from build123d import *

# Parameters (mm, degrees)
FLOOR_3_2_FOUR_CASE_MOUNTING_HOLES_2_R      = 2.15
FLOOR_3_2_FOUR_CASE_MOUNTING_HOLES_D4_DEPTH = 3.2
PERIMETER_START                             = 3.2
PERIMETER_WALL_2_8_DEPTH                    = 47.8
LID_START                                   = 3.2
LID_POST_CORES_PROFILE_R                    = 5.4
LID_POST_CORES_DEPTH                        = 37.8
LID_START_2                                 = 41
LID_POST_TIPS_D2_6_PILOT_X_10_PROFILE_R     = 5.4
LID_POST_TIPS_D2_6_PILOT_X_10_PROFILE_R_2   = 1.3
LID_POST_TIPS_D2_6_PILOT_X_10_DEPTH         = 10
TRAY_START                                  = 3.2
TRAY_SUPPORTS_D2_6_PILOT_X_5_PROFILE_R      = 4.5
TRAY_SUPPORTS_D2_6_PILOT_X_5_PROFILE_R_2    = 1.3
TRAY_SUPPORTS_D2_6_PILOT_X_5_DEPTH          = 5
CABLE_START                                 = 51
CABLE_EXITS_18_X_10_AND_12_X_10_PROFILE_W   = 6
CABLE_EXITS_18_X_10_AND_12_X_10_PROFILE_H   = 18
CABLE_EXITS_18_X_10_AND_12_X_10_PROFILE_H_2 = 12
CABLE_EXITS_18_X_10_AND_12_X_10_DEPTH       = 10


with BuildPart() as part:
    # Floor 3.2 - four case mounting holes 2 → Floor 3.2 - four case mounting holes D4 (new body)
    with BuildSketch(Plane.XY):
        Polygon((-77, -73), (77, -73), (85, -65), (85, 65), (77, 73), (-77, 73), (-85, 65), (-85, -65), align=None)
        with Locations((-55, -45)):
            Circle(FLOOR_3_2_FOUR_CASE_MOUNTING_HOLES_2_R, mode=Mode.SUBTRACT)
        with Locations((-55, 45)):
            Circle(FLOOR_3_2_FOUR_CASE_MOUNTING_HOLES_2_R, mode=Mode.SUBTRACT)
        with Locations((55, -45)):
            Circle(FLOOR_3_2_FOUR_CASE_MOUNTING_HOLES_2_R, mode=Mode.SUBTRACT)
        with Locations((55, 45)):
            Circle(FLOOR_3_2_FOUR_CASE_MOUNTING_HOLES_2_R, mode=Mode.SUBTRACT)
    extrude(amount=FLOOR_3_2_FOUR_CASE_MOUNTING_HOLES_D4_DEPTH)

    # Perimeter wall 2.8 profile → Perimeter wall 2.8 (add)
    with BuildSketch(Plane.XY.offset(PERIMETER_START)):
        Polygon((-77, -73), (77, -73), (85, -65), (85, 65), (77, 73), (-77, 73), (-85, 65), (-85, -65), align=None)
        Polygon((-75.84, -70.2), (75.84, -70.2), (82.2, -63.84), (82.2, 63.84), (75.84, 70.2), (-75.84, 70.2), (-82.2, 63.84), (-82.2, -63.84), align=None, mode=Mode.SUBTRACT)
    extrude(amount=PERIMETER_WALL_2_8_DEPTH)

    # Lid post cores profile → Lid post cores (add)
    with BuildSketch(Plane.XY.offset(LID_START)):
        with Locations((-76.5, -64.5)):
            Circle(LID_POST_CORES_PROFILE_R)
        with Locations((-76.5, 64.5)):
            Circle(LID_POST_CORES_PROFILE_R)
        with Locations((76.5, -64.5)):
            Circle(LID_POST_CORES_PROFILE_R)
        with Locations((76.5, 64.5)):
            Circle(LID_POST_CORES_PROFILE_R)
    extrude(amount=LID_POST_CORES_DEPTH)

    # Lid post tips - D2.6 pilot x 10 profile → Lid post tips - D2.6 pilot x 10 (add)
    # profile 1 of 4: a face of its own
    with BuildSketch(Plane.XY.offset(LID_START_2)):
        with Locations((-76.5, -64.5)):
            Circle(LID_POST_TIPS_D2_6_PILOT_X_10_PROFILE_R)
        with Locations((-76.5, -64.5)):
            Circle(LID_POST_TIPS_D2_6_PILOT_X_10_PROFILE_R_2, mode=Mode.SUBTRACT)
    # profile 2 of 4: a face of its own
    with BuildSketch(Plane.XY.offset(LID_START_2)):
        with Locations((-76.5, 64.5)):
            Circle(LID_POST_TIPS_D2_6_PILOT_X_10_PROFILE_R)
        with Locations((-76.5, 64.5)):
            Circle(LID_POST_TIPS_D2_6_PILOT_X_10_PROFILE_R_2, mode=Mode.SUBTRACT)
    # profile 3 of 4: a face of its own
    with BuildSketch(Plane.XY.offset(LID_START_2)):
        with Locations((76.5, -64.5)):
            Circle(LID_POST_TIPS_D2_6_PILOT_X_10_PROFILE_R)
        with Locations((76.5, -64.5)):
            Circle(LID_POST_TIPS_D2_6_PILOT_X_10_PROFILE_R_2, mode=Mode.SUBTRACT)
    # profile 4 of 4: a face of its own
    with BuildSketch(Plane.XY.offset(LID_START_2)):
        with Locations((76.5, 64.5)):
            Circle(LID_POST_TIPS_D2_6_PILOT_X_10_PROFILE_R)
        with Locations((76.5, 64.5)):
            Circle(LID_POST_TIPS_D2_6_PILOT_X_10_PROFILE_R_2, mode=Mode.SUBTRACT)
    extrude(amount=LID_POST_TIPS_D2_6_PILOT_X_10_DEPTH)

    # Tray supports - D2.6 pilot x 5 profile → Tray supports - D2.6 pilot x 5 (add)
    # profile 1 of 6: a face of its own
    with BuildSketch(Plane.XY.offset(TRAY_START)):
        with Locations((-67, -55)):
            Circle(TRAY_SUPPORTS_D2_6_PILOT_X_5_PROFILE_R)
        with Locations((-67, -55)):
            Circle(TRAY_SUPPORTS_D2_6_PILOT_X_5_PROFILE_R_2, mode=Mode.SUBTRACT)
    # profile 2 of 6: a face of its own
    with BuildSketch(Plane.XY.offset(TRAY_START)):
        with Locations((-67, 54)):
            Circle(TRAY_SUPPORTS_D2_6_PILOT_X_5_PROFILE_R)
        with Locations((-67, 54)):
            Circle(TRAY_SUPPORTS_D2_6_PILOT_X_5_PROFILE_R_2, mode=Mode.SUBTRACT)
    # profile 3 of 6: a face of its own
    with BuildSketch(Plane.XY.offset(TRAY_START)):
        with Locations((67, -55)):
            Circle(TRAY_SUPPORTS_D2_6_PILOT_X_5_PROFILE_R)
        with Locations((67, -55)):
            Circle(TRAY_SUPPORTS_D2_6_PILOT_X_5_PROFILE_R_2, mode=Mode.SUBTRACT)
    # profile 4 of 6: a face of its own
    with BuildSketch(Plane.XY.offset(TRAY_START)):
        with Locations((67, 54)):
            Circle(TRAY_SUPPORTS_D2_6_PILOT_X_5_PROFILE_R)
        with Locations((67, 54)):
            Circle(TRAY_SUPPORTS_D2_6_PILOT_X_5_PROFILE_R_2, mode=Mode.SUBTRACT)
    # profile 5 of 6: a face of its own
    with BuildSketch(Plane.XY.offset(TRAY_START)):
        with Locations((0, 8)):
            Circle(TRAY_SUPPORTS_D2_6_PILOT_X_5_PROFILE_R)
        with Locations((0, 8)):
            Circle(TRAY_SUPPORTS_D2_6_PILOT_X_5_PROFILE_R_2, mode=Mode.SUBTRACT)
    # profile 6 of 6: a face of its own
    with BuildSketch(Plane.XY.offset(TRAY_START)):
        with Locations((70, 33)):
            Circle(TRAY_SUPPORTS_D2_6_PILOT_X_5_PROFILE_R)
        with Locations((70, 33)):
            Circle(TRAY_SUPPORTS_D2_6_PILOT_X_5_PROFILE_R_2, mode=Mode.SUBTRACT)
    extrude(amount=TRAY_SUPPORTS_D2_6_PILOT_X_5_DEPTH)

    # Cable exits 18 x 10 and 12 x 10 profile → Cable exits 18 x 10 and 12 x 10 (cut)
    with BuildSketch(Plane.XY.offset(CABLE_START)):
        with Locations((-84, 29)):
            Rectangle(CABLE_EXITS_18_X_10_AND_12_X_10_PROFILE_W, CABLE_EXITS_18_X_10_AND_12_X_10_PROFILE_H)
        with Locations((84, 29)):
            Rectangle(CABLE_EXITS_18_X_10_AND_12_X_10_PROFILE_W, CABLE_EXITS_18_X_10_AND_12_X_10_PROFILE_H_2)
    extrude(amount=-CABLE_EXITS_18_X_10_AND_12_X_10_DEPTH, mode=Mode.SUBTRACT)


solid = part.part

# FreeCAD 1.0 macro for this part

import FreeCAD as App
import Part
import Sketcher


def add_polygon(sketch, points):
    """Adds a closed chain of lines whose ends are joined by coincident constraints."""
    first, n = sketch.GeometryCount, len(points)
    for a, b in zip(points, points[1:] + points[:1]):
        sketch.addGeometry(Part.LineSegment(App.Vector(*a, 0), App.Vector(*b, 0)), False)
    for i in range(n):
        sketch.addConstraint(Sketcher.Constraint("Coincident", first + i, 2, first + (i + 1) % n, 1))

doc = App.newDocument("Part")
body = doc.addObject("PartDesign::Body", "Body")

# Sketch on XY plane
sketch1 = body.newObject("Sketcher::SketchObject", "Sketch")
sketch1.AttachmentSupport = (doc.getObject("XY_Plane"), [""])
sketch1.MapMode = "FlatFace"
add_polygon(sketch1, [(-77, -73), (77, -73), (85, -65), (85, 65), (77, 73), (-77, 73), (-85, 65), (-85, -65)])  # lines 0-7
sketch1.addGeometry(Part.Circle(App.Vector(-55, -45, 0), App.Vector(0, 0, 1), 2.1), False)  # 8
sketch1.addGeometry(Part.Circle(App.Vector(55, -45, 0), App.Vector(0, 0, 1), 2.1), False)  # 9
sketch1.addGeometry(Part.Circle(App.Vector(-55, 45, 0), App.Vector(0, 0, 1), 2.1), False)  # 10
sketch1.addGeometry(Part.Circle(App.Vector(55, 45, 0), App.Vector(0, 0, 1), 2.1), False)  # 11
sketch1.addConstraint(Sketcher.Constraint("Horizontal", 0))
sketch1.addConstraint(Sketcher.Constraint("Vertical", 2))
sketch1.addConstraint(Sketcher.Constraint("Horizontal", 4))
sketch1.addConstraint(Sketcher.Constraint("Vertical", 6))
sketch1.addConstraint(Sketcher.Constraint("Equal", 8, 9))
sketch1.addConstraint(Sketcher.Constraint("Equal", 9, 10))
sketch1.addConstraint(Sketcher.Constraint("Equal", 10, 11))
sketch1.addConstraint(Sketcher.Constraint("Symmetric", 9, 3, 10, 3, -1, 1))
sketch1.addConstraint(Sketcher.Constraint("Symmetric", 8, 3, 11, 3, -1, 1))
sketch1.addConstraint(Sketcher.Constraint("Symmetric", 0, 2, 4, 2, -1, 1))
sketch1.addConstraint(Sketcher.Constraint("Symmetric", 1, 2, 5, 2, -1, 1))
sketch1.addConstraint(Sketcher.Constraint("Symmetric", 8, 3, 9, 3, -2))
sketch1.addConstraint(Sketcher.Constraint("Perpendicular", 1, 3))
sketch1.addConstraint(Sketcher.Constraint("Perpendicular", 5, 7))
sketch1.addConstraint(Sketcher.Constraint("Horizontal", 2, 2, 5, 2))
sketch1.addConstraint(Sketcher.Constraint("Horizontal", 1, 2, 6, 2))
sketch1.addConstraint(Sketcher.Constraint("Vertical", 0, 2, 3, 2))
sketch1.addConstraint(Sketcher.Constraint("Diameter", 8, 4.3))
sketch1.addConstraint(Sketcher.Constraint("DistanceX", 0, 1, 0, 2, 154.0))
sketch1.addConstraint(Sketcher.Constraint("DistanceY", 2, 1, 2, 2, 130.0))
sketch1.addConstraint(Sketcher.Constraint("DistanceX", 8, 3, -1, 1, 55.0))
sketch1.addConstraint(Sketcher.Constraint("DistanceY", 8, 3, -1, 1, 45.0))
sketch1.addConstraint(Sketcher.Constraint("DistanceY", 0, 2, -1, 1, 73.0))
pad1 = body.newObject("PartDesign::Pad", "Pad")
pad1.Profile = sketch1
pad1.Length = 3.2

# Sketch on XY plane
sketch2 = body.newObject("Sketcher::SketchObject", "Sketch001")
sketch2.AttachmentSupport = (doc.getObject("XY_Plane"), [""])
sketch2.MapMode = "FlatFace"
sketch2.AttachmentOffset = App.Placement(App.Vector(0, 0, 3.2), App.Rotation())
add_polygon(sketch2, [(-77, -73), (77, -73), (85, -65), (85, 65), (77, 73), (-77, 73), (-85, 65), (-85, -65)])  # lines 0-7
add_polygon(sketch2, [(76, -70), (-76, -70), (-82, -64), (-82, 64), (-76, 70), (76, 70), (82, 64), (82, -64)])  # lines 8-15
sketch2.addConstraint(Sketcher.Constraint("Horizontal", 0))
sketch2.addConstraint(Sketcher.Constraint("Vertical", 2))
sketch2.addConstraint(Sketcher.Constraint("Horizontal", 4))
sketch2.addConstraint(Sketcher.Constraint("Vertical", 6))
sketch2.addConstraint(Sketcher.Constraint("Horizontal", 8))
sketch2.addConstraint(Sketcher.Constraint("Vertical", 10))
sketch2.addConstraint(Sketcher.Constraint("Horizontal", 12))
sketch2.addConstraint(Sketcher.Constraint("Vertical", 14))
sketch2.addConstraint(Sketcher.Constraint("Symmetric", 0, 2, 4, 2, -1, 1))
sketch2.addConstraint(Sketcher.Constraint("Symmetric", 1, 2, 5, 2, -1, 1))
sketch2.addConstraint(Sketcher.Constraint("Symmetric", 8, 2, 12, 2, -1, 1))
sketch2.addConstraint(Sketcher.Constraint("Symmetric", 9, 2, 13, 2, -1, 1))
sketch2.addConstraint(Sketcher.Constraint("Perpendicular", 1, 3))
sketch2.addConstraint(Sketcher.Constraint("Perpendicular", 5, 7))
sketch2.addConstraint(Sketcher.Constraint("Parallel", 7, 9))
sketch2.addConstraint(Sketcher.Constraint("Perpendicular", 9, 11))
sketch2.addConstraint(Sketcher.Constraint("Perpendicular", 13, 15))
sketch2.addConstraint(Sketcher.Constraint("Horizontal", 2, 2, 5, 2))
sketch2.addConstraint(Sketcher.Constraint("Horizontal", 1, 2, 6, 2))
sketch2.addConstraint(Sketcher.Constraint("Horizontal", 10, 2, 13, 2))
sketch2.addConstraint(Sketcher.Constraint("Horizontal", 9, 2, 14, 2))
sketch2.addConstraint(Sketcher.Constraint("Vertical", 0, 2, 3, 2))
sketch2.addConstraint(Sketcher.Constraint("DistanceX", 0, 1, 0, 2, 154.0))
sketch2.addConstraint(Sketcher.Constraint("DistanceY", 2, 1, 2, 2, 130.0))
sketch2.addConstraint(Sketcher.Constraint("DistanceY", 0, 2, -1, 1, 73.0))
sketch2.addConstraint(Sketcher.Constraint("DistanceX", 8, 2, 8, 1, 151.68))
sketch2.addConstraint(Sketcher.Constraint("DistanceY", 10, 1, 10, 2, 127.68))
sketch2.addConstraint(Sketcher.Constraint("DistanceY", 8, 2, -1, 1, 70.2))
pad2 = body.newObject("PartDesign::Pad", "Pad001")
pad2.Profile = sketch2
pad2.Length = 47.8

# Sketch on XY plane
sketch3 = body.newObject("Sketcher::SketchObject", "Sketch002")
sketch3.AttachmentSupport = (doc.getObject("XY_Plane"), [""])
sketch3.MapMode = "FlatFace"
sketch3.AttachmentOffset = App.Placement(App.Vector(0, 0, 3.2), App.Rotation())
sketch3.addGeometry(Part.Circle(App.Vector(-76, -64, 0), App.Vector(0, 0, 1), 5), False)
sketch3.addGeometry(Part.Circle(App.Vector(-76, 64, 0), App.Vector(0, 0, 1), 5), False)
sketch3.addGeometry(Part.Circle(App.Vector(76, -64, 0), App.Vector(0, 0, 1), 5), False)
sketch3.addGeometry(Part.Circle(App.Vector(76, 64, 0), App.Vector(0, 0, 1), 5), False)
sketch3.addConstraint(Sketcher.Constraint("Equal", 0, 1))
sketch3.addConstraint(Sketcher.Constraint("Equal", 1, 2))
sketch3.addConstraint(Sketcher.Constraint("Equal", 2, 3))
sketch3.addConstraint(Sketcher.Constraint("Symmetric", 1, 3, 2, 3, -1, 1))
sketch3.addConstraint(Sketcher.Constraint("Symmetric", 0, 3, 3, 3, -1, 1))
sketch3.addConstraint(Sketcher.Constraint("Symmetric", 0, 3, 2, 3, -2))
sketch3.addConstraint(Sketcher.Constraint("Diameter", 0, 10.8))
sketch3.addConstraint(Sketcher.Constraint("DistanceY", 0, 3, 1, 3, 129.0))
sketch3.addConstraint(Sketcher.Constraint("DistanceX", 0, 3, 2, 3, 153.0))
pad3 = body.newObject("PartDesign::Pad", "Pad002")
pad3.Profile = sketch3
pad3.Length = 37.8

# Sketch on XY plane
sketch4 = body.newObject("Sketcher::SketchObject", "Sketch003")
sketch4.AttachmentSupport = (doc.getObject("XY_Plane"), [""])
sketch4.MapMode = "FlatFace"
sketch4.AttachmentOffset = App.Placement(App.Vector(0, 0, 41), App.Rotation())
sketch4.addGeometry(Part.Circle(App.Vector(-76.5, -64.5, 0), App.Vector(0, 0, 1), 5.4), False)
sketch4.addGeometry(Part.Circle(App.Vector(-76.5, -64.5, 0), App.Vector(0, 0, 1), 1.3), False)
sketch4.addGeometry(Part.Circle(App.Vector(-76.5, 64.5, 0), App.Vector(0, 0, 1), 5.4), False)
sketch4.addGeometry(Part.Circle(App.Vector(-76.5, 64.5, 0), App.Vector(0, 0, 1), 1.3), False)
sketch4.addGeometry(Part.Circle(App.Vector(76.5, -64.5, 0), App.Vector(0, 0, 1), 5.4), False)
sketch4.addGeometry(Part.Circle(App.Vector(76.5, -64.5, 0), App.Vector(0, 0, 1), 1.3), False)
sketch4.addGeometry(Part.Circle(App.Vector(76.5, 64.5, 0), App.Vector(0, 0, 1), 5.4), False)
sketch4.addGeometry(Part.Circle(App.Vector(76.5, 64.5, 0), App.Vector(0, 0, 1), 1.3), False)
sketch4.addConstraint(Sketcher.Constraint("Coincident", 1, 3, 0, 3))
sketch4.addConstraint(Sketcher.Constraint("Coincident", 3, 3, 2, 3))
sketch4.addConstraint(Sketcher.Constraint("Coincident", 5, 3, 4, 3))
sketch4.addConstraint(Sketcher.Constraint("Coincident", 7, 3, 6, 3))
sketch4.addConstraint(Sketcher.Constraint("Equal", 0, 2))
sketch4.addConstraint(Sketcher.Constraint("Equal", 1, 3))
sketch4.addConstraint(Sketcher.Constraint("Equal", 2, 4))
sketch4.addConstraint(Sketcher.Constraint("Equal", 3, 5))
sketch4.addConstraint(Sketcher.Constraint("Equal", 4, 6))
sketch4.addConstraint(Sketcher.Constraint("Equal", 5, 7))
sketch4.addConstraint(Sketcher.Constraint("Symmetric", 2, 3, 4, 3, -1, 1))
sketch4.addConstraint(Sketcher.Constraint("Symmetric", 0, 3, 6, 3, -1, 1))
sketch4.addConstraint(Sketcher.Constraint("Symmetric", 0, 3, 4, 3, -2))
sketch4.addConstraint(Sketcher.Constraint("Diameter", 0, 10.8))
sketch4.addConstraint(Sketcher.Constraint("Diameter", 1, 2.6))
sketch4.addConstraint(Sketcher.Constraint("DistanceY", 0, 3, 2, 3, 129.0))
sketch4.addConstraint(Sketcher.Constraint("DistanceX", 0, 3, 4, 3, 153.0))
pad4 = body.newObject("PartDesign::Pad", "Pad003")
pad4.Profile = sketch4
pad4.Length = 10

# Sketch on XY plane
sketch5 = body.newObject("Sketcher::SketchObject", "Sketch004")
sketch5.AttachmentSupport = (doc.getObject("XY_Plane"), [""])
sketch5.MapMode = "FlatFace"
sketch5.AttachmentOffset = App.Placement(App.Vector(0, 0, 3.2), App.Rotation())
sketch5.addGeometry(Part.Circle(App.Vector(-67, -55, 0), App.Vector(0, 0, 1), 4.5), False)
sketch5.addGeometry(Part.Circle(App.Vector(-67, -55, 0), App.Vector(0, 0, 1), 1.3), False)
sketch5.addGeometry(Part.Circle(App.Vector(-67, 54, 0), App.Vector(0, 0, 1), 4.5), False)
sketch5.addGeometry(Part.Circle(App.Vector(-67, 54, 0), App.Vector(0, 0, 1), 1.3), False)
sketch5.addGeometry(Part.Circle(App.Vector(67, -55, 0), App.Vector(0, 0, 1), 4.5), False)
sketch5.addGeometry(Part.Circle(App.Vector(67, -55, 0), App.Vector(0, 0, 1), 1.3), False)
sketch5.addGeometry(Part.Circle(App.Vector(67, 54, 0), App.Vector(0, 0, 1), 4.5), False)
sketch5.addGeometry(Part.Circle(App.Vector(67, 54, 0), App.Vector(0, 0, 1), 1.3), False)
sketch5.addGeometry(Part.Circle(App.Vector(0, 8, 0), App.Vector(0, 0, 1), 4.5), False)
sketch5.addGeometry(Part.Circle(App.Vector(0, 8, 0), App.Vector(0, 0, 1), 1.3), False)
sketch5.addGeometry(Part.Circle(App.Vector(70, 33, 0), App.Vector(0, 0, 1), 4.5), False)
sketch5.addGeometry(Part.Circle(App.Vector(70, 33, 0), App.Vector(0, 0, 1), 1.3), False)
sketch5.addConstraint(Sketcher.Constraint("Coincident", 1, 3, 0, 3))
sketch5.addConstraint(Sketcher.Constraint("Coincident", 3, 3, 2, 3))
sketch5.addConstraint(Sketcher.Constraint("Coincident", 5, 3, 4, 3))
sketch5.addConstraint(Sketcher.Constraint("Coincident", 7, 3, 6, 3))
sketch5.addConstraint(Sketcher.Constraint("Coincident", 9, 3, 8, 3))
sketch5.addConstraint(Sketcher.Constraint("Coincident", 11, 3, 10, 3))
sketch5.addConstraint(Sketcher.Constraint("Equal", 0, 2))
sketch5.addConstraint(Sketcher.Constraint("Equal", 1, 3))
sketch5.addConstraint(Sketcher.Constraint("Equal", 2, 4))
sketch5.addConstraint(Sketcher.Constraint("Equal", 3, 5))
sketch5.addConstraint(Sketcher.Constraint("Equal", 4, 6))
sketch5.addConstraint(Sketcher.Constraint("Equal", 5, 7))
sketch5.addConstraint(Sketcher.Constraint("Equal", 6, 8))
sketch5.addConstraint(Sketcher.Constraint("Equal", 7, 9))
sketch5.addConstraint(Sketcher.Constraint("Equal", 8, 10))
sketch5.addConstraint(Sketcher.Constraint("Equal", 9, 11))
sketch5.addConstraint(Sketcher.Constraint("Symmetric", 0, 3, 4, 3, -2))
sketch5.addConstraint(Sketcher.Constraint("Symmetric", 2, 3, 6, 3, -2))
sketch5.addConstraint(Sketcher.Constraint("PointOnObject", 8, 3, -2))
sketch5.addConstraint(Sketcher.Constraint("Vertical", 1, 3, 2, 3))
sketch5.addConstraint(Sketcher.Constraint("Diameter", 0, 9.0))
sketch5.addConstraint(Sketcher.Constraint("Diameter", 1, 2.6))
sketch5.addConstraint(Sketcher.Constraint("DistanceX", 0, 3, -1, 1, 67.0))
sketch5.addConstraint(Sketcher.Constraint("DistanceY", 0, 3, -1, 1, 55.0))
sketch5.addConstraint(Sketcher.Constraint("DistanceY", -1, 1, 2, 3, 54.0))
sketch5.addConstraint(Sketcher.Constraint("DistanceY", -1, 1, 8, 3, 8.0))
sketch5.addConstraint(Sketcher.Constraint("DistanceX", -1, 1, 10, 3, 70.0))
sketch5.addConstraint(Sketcher.Constraint("DistanceY", -1, 1, 10, 3, 33.0))
pad5 = body.newObject("PartDesign::Pad", "Pad004")
pad5.Profile = sketch5
pad5.Length = 5

# Sketch on XY plane
sketch6 = body.newObject("Sketcher::SketchObject", "Sketch005")
sketch6.AttachmentSupport = (doc.getObject("XY_Plane"), [""])
sketch6.MapMode = "FlatFace"
sketch6.AttachmentOffset = App.Placement(App.Vector(0, 0, 51), App.Rotation())
add_polygon(sketch6, [(-87, 38), (-87, 20), (-81, 20), (-81, 38)])  # lines 0-3
add_polygon(sketch6, [(81, 35), (81, 23), (87, 23), (87, 35)])  # lines 4-7
sketch6.addConstraint(Sketcher.Constraint("Vertical", 0))
sketch6.addConstraint(Sketcher.Constraint("Horizontal", 1))
sketch6.addConstraint(Sketcher.Constraint("Vertical", 2))
sketch6.addConstraint(Sketcher.Constraint("Horizontal", 3))
sketch6.addConstraint(Sketcher.Constraint("Vertical", 4))
sketch6.addConstraint(Sketcher.Constraint("Horizontal", 5))
sketch6.addConstraint(Sketcher.Constraint("Vertical", 6))
sketch6.addConstraint(Sketcher.Constraint("Horizontal", 7))
sketch6.addConstraint(Sketcher.Constraint("Equal", 3, 5))
sketch6.addConstraint(Sketcher.Constraint("DistanceX", 1, 1, 1, 2, 6.0))
sketch6.addConstraint(Sketcher.Constraint("DistanceY", 0, 2, 0, 1, 18.0))
sketch6.addConstraint(Sketcher.Constraint("DistanceY", 4, 2, 4, 1, 12.0))
sketch6.addConstraint(Sketcher.Constraint("DistanceX", 0, 2, -1, 1, 87.0))
sketch6.addConstraint(Sketcher.Constraint("DistanceY", -1, 1, 0, 2, 20.0))
sketch6.addConstraint(Sketcher.Constraint("DistanceX", -1, 1, 4, 2, 81.0))
sketch6.addConstraint(Sketcher.Constraint("DistanceY", -1, 1, 4, 2, 23.0))
pocket1 = body.newObject("PartDesign::Pocket", "Pocket")
pocket1.Profile = sketch6
pocket1.Length = 10

doc.recompute()
